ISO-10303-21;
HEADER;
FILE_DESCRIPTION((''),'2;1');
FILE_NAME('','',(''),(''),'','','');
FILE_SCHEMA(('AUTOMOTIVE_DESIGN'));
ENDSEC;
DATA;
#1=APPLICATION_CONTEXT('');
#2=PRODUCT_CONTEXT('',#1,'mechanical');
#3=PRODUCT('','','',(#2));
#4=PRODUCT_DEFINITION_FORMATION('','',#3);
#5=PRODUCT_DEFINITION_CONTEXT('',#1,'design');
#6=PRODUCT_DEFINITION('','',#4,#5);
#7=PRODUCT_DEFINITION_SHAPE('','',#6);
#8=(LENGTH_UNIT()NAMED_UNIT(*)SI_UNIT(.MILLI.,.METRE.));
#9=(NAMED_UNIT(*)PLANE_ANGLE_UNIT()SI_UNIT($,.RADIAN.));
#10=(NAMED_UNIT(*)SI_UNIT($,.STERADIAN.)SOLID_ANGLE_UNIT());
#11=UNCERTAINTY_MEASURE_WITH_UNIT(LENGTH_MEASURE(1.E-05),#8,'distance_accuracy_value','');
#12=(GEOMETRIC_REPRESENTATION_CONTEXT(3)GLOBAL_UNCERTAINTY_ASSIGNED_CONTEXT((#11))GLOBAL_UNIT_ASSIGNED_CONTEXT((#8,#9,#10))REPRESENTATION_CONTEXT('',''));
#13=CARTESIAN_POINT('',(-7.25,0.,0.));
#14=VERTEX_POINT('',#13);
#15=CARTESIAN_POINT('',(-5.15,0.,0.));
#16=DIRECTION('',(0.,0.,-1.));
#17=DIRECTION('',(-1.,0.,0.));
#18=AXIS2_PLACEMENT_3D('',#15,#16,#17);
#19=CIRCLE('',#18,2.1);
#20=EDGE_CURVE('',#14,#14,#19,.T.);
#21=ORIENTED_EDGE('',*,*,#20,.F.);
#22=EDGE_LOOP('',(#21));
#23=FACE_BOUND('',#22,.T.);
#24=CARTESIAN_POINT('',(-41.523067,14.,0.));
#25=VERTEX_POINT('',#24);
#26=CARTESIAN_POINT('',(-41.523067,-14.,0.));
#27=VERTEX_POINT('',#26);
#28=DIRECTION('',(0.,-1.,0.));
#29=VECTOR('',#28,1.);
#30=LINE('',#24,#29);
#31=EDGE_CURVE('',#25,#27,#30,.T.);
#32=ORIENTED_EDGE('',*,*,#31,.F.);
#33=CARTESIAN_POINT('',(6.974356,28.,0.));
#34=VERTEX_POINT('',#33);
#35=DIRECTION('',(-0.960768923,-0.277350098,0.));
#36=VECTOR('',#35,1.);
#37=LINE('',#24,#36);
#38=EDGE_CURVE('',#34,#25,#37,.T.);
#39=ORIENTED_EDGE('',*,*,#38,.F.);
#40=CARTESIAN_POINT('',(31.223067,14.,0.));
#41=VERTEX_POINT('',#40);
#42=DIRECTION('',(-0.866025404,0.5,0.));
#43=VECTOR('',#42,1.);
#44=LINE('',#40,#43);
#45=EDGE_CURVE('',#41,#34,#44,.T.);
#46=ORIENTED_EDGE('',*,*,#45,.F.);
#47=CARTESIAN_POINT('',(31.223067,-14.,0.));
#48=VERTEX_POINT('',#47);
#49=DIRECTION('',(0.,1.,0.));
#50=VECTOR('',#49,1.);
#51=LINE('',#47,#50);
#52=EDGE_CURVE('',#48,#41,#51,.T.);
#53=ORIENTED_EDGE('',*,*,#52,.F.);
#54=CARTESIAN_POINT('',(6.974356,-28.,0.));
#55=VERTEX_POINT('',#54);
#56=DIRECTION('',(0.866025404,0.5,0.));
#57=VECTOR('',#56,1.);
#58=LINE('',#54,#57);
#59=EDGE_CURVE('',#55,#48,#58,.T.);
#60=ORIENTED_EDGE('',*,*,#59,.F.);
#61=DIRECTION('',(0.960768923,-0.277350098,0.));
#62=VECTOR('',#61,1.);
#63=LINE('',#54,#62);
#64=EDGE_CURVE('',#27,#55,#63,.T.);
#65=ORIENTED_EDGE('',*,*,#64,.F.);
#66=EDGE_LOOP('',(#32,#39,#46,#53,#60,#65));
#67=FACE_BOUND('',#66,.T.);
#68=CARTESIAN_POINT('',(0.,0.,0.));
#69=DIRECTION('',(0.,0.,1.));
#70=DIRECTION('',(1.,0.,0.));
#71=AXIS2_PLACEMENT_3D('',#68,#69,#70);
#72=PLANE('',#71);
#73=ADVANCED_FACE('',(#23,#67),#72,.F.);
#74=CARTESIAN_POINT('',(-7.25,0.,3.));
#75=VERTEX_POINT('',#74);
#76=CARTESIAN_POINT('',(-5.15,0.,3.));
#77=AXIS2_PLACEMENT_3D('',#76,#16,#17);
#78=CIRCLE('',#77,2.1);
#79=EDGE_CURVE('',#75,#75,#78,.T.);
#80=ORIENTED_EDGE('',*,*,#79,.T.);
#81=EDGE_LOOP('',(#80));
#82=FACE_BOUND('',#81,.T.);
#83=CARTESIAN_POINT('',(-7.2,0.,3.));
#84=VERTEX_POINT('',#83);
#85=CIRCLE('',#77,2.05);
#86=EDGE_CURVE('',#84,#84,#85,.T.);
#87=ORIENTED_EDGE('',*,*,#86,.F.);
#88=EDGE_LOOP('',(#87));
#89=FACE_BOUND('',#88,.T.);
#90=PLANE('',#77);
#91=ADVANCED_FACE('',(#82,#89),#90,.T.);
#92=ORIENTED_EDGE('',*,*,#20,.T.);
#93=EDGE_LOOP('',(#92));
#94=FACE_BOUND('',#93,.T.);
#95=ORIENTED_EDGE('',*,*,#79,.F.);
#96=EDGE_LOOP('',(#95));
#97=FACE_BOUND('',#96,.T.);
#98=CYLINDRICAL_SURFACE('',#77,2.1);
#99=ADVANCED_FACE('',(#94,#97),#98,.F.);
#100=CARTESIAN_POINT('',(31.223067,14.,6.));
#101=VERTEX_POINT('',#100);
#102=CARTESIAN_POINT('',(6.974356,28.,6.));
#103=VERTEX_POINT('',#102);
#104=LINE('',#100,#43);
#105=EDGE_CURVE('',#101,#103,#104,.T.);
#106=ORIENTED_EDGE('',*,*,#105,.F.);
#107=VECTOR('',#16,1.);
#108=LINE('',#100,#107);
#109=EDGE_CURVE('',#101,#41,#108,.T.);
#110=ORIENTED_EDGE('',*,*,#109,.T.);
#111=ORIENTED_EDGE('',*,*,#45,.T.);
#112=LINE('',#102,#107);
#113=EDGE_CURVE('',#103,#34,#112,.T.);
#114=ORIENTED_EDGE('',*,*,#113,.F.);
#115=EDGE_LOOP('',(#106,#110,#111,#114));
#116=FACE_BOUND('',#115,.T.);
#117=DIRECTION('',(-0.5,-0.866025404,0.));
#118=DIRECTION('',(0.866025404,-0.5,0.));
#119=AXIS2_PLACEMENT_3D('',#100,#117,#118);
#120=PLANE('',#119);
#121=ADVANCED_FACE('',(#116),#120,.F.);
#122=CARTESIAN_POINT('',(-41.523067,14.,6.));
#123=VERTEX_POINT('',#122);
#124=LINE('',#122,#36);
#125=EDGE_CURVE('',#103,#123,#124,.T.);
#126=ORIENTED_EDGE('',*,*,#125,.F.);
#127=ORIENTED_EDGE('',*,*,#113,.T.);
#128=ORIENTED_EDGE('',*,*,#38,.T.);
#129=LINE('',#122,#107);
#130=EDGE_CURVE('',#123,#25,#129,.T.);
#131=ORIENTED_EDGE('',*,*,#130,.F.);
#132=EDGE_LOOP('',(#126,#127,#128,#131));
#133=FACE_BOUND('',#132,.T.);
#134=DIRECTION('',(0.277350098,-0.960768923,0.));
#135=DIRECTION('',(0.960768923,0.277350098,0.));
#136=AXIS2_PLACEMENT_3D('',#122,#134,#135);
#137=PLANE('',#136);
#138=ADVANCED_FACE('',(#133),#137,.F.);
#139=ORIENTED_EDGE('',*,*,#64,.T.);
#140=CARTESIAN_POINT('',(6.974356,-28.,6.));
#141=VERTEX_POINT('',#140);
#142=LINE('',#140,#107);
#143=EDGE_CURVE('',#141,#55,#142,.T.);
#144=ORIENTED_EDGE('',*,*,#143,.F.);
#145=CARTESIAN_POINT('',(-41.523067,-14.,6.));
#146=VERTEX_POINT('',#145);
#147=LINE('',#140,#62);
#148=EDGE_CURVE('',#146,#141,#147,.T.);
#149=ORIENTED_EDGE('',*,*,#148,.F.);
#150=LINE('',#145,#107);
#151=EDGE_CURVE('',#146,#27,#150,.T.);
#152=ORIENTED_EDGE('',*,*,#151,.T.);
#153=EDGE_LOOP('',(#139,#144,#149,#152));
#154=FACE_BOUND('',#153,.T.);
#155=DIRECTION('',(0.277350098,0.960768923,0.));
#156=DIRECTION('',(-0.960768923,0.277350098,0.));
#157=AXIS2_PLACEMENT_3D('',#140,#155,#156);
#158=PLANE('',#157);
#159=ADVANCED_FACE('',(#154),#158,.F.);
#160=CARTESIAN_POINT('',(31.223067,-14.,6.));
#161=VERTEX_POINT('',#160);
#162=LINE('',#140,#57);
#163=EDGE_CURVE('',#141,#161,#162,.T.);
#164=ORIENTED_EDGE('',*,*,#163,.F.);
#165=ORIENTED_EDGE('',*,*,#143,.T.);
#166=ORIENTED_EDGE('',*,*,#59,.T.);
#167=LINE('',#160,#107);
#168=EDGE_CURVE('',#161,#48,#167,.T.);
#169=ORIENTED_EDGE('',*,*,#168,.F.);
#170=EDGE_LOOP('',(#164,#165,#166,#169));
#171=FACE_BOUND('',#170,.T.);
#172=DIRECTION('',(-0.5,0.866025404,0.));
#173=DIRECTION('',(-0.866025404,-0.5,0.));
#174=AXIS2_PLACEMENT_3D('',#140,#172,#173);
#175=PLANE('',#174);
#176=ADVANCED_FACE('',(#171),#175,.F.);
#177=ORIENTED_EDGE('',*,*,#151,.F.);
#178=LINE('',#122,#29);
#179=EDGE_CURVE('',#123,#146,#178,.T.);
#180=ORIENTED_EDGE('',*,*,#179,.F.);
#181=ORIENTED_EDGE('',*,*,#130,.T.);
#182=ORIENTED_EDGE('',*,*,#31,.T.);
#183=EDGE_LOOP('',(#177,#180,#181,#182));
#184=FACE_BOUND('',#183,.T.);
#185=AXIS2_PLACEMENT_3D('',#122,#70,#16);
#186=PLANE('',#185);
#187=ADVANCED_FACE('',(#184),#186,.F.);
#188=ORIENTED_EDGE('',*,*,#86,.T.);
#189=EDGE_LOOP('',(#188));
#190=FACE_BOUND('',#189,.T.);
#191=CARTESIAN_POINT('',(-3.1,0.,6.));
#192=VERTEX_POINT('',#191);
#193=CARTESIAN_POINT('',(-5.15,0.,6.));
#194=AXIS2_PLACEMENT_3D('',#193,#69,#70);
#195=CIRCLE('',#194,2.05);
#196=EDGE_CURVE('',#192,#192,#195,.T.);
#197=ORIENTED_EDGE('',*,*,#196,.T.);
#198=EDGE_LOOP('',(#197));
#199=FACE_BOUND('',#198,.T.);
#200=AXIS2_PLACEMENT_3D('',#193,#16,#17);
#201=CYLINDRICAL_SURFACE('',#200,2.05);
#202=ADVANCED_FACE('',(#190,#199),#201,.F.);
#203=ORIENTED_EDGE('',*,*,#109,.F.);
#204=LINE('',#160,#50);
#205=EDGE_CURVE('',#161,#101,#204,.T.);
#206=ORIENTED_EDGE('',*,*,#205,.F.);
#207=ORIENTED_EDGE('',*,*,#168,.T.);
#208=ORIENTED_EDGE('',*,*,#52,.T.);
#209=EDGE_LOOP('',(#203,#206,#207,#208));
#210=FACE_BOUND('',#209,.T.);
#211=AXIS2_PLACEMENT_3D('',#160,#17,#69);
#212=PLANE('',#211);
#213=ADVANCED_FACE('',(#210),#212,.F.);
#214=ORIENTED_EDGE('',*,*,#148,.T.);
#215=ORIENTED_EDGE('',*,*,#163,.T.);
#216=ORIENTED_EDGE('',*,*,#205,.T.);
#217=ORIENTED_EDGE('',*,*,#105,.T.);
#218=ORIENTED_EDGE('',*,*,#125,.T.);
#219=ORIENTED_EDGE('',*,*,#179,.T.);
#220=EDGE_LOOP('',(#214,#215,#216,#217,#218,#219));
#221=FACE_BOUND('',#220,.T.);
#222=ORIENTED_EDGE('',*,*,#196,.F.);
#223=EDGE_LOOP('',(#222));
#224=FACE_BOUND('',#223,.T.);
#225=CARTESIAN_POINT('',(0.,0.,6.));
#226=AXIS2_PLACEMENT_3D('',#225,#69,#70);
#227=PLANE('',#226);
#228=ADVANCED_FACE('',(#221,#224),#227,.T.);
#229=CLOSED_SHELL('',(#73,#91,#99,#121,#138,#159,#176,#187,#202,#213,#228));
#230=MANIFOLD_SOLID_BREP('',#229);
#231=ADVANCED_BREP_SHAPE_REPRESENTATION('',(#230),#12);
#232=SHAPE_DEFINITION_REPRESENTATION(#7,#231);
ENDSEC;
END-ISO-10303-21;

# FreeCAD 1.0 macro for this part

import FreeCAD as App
import Part
import Sketcher

V = App.Vector
Q = App.Units.Quantity


def add_polygon(sketch, points):
    """Adds a closed chain of lines whose ends are joined by coincident constraints."""
    first, n = sketch.GeometryCount, len(points)
    for a, b in zip(points, points[1:] + points[:1]):
        sketch.addGeometry(Part.LineSegment(App.Vector(*a, 0), App.Vector(*b, 0)), False)
    for i in range(n):
        sketch.addConstraint(Sketcher.Constraint("Coincident", first + i, 2, first + (i + 1) % n, 1))

doc = App.newDocument("Part")
body = doc.addObject("PartDesign::Body", "Body")

# Sketch on XY plane
sketch1 = doc.addObject("Sketcher::SketchObject", "Sketch")
body.addObject(sketch1)
sketch1.AttachmentSupport = (doc.XY_Plane, [""])
sketch1.MapMode = "FlatFace"
add_polygon(sketch1, [(-41.5, 14), (-41.5, -14), (7, -28), (31.2, -14), (31.2, 14), (7, 28)])  # lines 0-5
sketch1.addGeometry(Part.Circle(V(-5.2, 0, 0), V(0, 0, 1), 2), False)  # 6
sketch1.addConstraint(Sketcher.Constraint("Vertical", 0))
sketch1.addConstraint(Sketcher.Constraint("Vertical", 3))
sketch1.addConstraint(Sketcher.Constraint("Symmetric", 1, 2, 4, 2, -1))
sketch1.addConstraint(Sketcher.Constraint("PointOnObject", 6, 3, -1))
sketch1.addConstraint(Sketcher.Constraint("Horizontal", 0, 2, 2, 2))
sketch1.addConstraint(Sketcher.Constraint("Horizontal", 3, 2, 5, 2))
sketch1.addConstraint(Sketcher.Constraint("Equal", 2, 4))
sketch1.addConstraint(Sketcher.Constraint("Diameter", 6, Q("4.1 mm")))
sketch1.addConstraint(Sketcher.Constraint("DistanceY", 0, 2, 0, 1, Q("28 mm")))
sketch1.addConstraint(Sketcher.Constraint("Angle", 2, Q("30 deg")))
sketch1.addConstraint(Sketcher.Constraint("Distance", 2, Q("28 mm")))
sketch1.addConstraint(Sketcher.Constraint("DistanceX", 6, 3, -1, 1, Q("5.15 mm")))
sketch1.addConstraint(Sketcher.Constraint("Distance", 1, Q("50.477718 mm")))
sketch1.addConstraint(Sketcher.Constraint("DistanceX", 0, 2, -1, 1, Q("41.523067 mm")))
pad1 = doc.addObject("PartDesign::Pad", "Pad")
body.addObject(pad1)
pad1.Profile = sketch1
pad1.Length = 6

# Sketch on XY plane
sketch2 = doc.addObject("Sketcher::SketchObject", "Sketch001")
body.addObject(sketch2)
sketch2.AttachmentSupport = (doc.XY_Plane, [""])
sketch2.MapMode = "FlatFace"
sketch2.addGeometry(Part.Circle(V(-5.2, 0, 0), V(0, 0, 1), 2.1), False)
sketch2.addConstraint(Sketcher.Constraint("PointOnObject", 0, 3, -1))
sketch2.addConstraint(Sketcher.Constraint("Diameter", 0, Q("4.2 mm")))
sketch2.addConstraint(Sketcher.Constraint("DistanceX", 0, 3, -1, 1, Q("5.15 mm")))
pocket1 = doc.addObject("PartDesign::Pocket", "Pocket")
body.addObject(pocket1)
pocket1.Profile = sketch2
pocket1.Length = 3
pocket1.Reversed = True

doc.recompute()
